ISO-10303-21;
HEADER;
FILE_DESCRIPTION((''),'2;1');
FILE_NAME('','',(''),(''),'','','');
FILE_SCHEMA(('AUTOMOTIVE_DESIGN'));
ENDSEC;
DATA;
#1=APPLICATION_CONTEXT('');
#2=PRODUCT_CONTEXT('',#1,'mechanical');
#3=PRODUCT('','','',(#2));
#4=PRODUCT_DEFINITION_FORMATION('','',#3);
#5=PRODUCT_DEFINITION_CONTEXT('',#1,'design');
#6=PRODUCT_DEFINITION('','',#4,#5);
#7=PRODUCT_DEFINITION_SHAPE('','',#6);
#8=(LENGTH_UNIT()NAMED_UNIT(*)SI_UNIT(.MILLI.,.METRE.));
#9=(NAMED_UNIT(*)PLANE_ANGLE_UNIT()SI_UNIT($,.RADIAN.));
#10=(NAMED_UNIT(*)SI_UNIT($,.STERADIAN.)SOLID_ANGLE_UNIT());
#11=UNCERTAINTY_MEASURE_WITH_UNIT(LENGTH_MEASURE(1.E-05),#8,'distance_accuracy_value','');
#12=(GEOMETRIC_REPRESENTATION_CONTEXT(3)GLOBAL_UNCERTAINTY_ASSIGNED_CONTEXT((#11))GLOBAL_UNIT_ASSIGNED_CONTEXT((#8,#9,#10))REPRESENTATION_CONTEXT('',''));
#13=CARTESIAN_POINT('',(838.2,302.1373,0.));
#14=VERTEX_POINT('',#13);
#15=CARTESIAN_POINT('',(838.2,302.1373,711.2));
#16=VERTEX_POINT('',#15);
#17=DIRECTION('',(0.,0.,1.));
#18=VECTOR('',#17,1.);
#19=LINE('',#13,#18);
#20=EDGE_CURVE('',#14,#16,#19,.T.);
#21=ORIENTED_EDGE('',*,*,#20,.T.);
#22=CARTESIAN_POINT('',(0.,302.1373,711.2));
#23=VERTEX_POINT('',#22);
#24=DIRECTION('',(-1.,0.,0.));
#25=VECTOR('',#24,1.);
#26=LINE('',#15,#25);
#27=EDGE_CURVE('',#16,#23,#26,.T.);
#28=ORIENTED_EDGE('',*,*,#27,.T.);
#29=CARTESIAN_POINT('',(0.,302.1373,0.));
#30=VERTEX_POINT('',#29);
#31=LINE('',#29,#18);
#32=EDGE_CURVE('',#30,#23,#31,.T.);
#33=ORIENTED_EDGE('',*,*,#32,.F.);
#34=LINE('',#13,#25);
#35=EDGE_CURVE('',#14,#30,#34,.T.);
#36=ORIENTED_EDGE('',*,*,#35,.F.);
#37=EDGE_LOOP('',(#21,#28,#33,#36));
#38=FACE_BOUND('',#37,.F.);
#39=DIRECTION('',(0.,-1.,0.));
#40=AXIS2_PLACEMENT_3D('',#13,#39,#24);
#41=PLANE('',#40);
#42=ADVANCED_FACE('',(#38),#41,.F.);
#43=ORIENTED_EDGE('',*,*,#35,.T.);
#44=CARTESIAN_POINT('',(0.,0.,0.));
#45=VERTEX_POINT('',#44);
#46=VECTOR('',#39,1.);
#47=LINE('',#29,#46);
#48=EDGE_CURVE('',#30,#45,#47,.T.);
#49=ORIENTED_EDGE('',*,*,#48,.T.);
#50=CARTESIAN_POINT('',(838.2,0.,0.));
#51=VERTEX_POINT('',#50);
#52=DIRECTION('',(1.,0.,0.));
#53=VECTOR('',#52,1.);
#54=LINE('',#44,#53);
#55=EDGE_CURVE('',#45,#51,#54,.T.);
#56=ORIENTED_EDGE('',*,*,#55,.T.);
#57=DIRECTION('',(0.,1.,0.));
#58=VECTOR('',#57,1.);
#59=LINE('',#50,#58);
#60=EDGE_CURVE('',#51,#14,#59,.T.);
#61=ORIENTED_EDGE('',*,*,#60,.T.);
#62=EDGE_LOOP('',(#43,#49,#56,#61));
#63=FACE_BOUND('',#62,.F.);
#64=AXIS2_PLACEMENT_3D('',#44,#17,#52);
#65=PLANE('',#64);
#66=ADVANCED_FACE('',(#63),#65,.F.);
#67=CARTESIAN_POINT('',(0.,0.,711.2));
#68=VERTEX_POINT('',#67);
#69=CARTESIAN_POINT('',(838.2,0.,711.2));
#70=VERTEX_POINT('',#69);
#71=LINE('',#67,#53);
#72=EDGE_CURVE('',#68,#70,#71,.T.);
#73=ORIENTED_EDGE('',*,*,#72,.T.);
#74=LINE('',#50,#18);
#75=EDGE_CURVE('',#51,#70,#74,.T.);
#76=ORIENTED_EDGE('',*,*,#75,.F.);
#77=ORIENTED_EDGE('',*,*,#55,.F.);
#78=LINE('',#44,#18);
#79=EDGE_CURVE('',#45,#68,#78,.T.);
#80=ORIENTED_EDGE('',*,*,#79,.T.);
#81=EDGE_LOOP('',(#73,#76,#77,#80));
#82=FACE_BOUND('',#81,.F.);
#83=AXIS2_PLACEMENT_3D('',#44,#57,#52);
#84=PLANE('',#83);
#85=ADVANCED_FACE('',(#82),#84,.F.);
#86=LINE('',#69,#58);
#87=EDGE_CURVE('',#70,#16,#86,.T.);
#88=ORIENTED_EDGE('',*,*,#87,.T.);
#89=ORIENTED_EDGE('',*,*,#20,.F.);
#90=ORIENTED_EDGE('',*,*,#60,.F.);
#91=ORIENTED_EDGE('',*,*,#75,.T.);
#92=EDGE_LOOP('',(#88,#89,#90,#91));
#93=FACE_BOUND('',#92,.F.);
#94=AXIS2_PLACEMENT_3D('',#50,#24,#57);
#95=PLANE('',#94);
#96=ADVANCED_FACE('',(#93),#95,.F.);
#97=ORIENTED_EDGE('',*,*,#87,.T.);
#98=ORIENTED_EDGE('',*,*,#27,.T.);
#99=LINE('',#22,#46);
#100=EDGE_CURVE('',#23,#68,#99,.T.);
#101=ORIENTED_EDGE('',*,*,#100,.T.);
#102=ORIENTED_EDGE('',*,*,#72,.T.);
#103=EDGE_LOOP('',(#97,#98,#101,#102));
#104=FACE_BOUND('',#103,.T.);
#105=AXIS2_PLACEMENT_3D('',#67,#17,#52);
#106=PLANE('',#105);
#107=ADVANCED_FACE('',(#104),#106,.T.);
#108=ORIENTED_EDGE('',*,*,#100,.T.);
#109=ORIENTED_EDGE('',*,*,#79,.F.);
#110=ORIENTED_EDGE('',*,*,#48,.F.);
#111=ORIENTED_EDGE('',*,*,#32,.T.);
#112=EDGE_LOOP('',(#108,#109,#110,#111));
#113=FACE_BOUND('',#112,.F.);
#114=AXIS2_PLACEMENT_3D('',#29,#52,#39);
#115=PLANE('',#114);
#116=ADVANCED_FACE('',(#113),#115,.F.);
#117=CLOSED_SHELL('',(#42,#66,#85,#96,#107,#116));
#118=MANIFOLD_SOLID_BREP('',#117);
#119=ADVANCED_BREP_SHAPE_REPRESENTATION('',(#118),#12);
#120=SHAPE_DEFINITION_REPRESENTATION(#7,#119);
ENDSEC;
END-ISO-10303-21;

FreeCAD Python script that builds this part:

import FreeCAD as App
import Part
import Sketcher
from FreeCAD import Vector
Q = App.Units.Quantity

doc = App.newDocument("Part")
body = doc.addObject("PartDesign::Body", "Body")

# Sketch on XY plane
sketch1 = body.newObject("Sketcher::SketchObject", "Sketch")
sketch1.AttachmentSupport = (doc.getObject("XY_Plane"), [""])
sketch1.MapMode = "FlatFace"
sketch1.addGeometry([
    Part.LineSegment(Vector(0, 302, 0), Vector(0, 0, 0)),
    Part.LineSegment(Vector(0, 0, 0), Vector(838, 0, 0)),
    Part.LineSegment(Vector(838, 0, 0), Vector(838, 302, 0)),
    Part.LineSegment(Vector(838, 302, 0), Vector(0, 302, 0)),
], False)
sketch1.addConstraint([
    Sketcher.Constraint("Coincident", 0, 2, 1, 1),
    Sketcher.Constraint("Coincident", 1, 2, 2, 1),
    Sketcher.Constraint("Coincident", 2, 2, 3, 1),
    Sketcher.Constraint("Coincident", 3, 2, 0, 1),
    Sketcher.Constraint("Vertical", 0),
    Sketcher.Constraint("Horizontal", 1),
    Sketcher.Constraint("Vertical", 2),
    Sketcher.Constraint("Horizontal", 3),
    Sketcher.Constraint("Coincident", 0, 2, -1, 1),
    Sketcher.Constraint("DistanceX", 1, 1, 1, 2, Q("33 in")),
    Sketcher.Constraint("DistanceY", 0, 2, 0, 1, 302.1373),
])
pad1 = body.newObject("PartDesign::Pad", "Pad")
pad1.Profile = sketch1
pad1.Length = Q("28 in")

doc.recompute()
